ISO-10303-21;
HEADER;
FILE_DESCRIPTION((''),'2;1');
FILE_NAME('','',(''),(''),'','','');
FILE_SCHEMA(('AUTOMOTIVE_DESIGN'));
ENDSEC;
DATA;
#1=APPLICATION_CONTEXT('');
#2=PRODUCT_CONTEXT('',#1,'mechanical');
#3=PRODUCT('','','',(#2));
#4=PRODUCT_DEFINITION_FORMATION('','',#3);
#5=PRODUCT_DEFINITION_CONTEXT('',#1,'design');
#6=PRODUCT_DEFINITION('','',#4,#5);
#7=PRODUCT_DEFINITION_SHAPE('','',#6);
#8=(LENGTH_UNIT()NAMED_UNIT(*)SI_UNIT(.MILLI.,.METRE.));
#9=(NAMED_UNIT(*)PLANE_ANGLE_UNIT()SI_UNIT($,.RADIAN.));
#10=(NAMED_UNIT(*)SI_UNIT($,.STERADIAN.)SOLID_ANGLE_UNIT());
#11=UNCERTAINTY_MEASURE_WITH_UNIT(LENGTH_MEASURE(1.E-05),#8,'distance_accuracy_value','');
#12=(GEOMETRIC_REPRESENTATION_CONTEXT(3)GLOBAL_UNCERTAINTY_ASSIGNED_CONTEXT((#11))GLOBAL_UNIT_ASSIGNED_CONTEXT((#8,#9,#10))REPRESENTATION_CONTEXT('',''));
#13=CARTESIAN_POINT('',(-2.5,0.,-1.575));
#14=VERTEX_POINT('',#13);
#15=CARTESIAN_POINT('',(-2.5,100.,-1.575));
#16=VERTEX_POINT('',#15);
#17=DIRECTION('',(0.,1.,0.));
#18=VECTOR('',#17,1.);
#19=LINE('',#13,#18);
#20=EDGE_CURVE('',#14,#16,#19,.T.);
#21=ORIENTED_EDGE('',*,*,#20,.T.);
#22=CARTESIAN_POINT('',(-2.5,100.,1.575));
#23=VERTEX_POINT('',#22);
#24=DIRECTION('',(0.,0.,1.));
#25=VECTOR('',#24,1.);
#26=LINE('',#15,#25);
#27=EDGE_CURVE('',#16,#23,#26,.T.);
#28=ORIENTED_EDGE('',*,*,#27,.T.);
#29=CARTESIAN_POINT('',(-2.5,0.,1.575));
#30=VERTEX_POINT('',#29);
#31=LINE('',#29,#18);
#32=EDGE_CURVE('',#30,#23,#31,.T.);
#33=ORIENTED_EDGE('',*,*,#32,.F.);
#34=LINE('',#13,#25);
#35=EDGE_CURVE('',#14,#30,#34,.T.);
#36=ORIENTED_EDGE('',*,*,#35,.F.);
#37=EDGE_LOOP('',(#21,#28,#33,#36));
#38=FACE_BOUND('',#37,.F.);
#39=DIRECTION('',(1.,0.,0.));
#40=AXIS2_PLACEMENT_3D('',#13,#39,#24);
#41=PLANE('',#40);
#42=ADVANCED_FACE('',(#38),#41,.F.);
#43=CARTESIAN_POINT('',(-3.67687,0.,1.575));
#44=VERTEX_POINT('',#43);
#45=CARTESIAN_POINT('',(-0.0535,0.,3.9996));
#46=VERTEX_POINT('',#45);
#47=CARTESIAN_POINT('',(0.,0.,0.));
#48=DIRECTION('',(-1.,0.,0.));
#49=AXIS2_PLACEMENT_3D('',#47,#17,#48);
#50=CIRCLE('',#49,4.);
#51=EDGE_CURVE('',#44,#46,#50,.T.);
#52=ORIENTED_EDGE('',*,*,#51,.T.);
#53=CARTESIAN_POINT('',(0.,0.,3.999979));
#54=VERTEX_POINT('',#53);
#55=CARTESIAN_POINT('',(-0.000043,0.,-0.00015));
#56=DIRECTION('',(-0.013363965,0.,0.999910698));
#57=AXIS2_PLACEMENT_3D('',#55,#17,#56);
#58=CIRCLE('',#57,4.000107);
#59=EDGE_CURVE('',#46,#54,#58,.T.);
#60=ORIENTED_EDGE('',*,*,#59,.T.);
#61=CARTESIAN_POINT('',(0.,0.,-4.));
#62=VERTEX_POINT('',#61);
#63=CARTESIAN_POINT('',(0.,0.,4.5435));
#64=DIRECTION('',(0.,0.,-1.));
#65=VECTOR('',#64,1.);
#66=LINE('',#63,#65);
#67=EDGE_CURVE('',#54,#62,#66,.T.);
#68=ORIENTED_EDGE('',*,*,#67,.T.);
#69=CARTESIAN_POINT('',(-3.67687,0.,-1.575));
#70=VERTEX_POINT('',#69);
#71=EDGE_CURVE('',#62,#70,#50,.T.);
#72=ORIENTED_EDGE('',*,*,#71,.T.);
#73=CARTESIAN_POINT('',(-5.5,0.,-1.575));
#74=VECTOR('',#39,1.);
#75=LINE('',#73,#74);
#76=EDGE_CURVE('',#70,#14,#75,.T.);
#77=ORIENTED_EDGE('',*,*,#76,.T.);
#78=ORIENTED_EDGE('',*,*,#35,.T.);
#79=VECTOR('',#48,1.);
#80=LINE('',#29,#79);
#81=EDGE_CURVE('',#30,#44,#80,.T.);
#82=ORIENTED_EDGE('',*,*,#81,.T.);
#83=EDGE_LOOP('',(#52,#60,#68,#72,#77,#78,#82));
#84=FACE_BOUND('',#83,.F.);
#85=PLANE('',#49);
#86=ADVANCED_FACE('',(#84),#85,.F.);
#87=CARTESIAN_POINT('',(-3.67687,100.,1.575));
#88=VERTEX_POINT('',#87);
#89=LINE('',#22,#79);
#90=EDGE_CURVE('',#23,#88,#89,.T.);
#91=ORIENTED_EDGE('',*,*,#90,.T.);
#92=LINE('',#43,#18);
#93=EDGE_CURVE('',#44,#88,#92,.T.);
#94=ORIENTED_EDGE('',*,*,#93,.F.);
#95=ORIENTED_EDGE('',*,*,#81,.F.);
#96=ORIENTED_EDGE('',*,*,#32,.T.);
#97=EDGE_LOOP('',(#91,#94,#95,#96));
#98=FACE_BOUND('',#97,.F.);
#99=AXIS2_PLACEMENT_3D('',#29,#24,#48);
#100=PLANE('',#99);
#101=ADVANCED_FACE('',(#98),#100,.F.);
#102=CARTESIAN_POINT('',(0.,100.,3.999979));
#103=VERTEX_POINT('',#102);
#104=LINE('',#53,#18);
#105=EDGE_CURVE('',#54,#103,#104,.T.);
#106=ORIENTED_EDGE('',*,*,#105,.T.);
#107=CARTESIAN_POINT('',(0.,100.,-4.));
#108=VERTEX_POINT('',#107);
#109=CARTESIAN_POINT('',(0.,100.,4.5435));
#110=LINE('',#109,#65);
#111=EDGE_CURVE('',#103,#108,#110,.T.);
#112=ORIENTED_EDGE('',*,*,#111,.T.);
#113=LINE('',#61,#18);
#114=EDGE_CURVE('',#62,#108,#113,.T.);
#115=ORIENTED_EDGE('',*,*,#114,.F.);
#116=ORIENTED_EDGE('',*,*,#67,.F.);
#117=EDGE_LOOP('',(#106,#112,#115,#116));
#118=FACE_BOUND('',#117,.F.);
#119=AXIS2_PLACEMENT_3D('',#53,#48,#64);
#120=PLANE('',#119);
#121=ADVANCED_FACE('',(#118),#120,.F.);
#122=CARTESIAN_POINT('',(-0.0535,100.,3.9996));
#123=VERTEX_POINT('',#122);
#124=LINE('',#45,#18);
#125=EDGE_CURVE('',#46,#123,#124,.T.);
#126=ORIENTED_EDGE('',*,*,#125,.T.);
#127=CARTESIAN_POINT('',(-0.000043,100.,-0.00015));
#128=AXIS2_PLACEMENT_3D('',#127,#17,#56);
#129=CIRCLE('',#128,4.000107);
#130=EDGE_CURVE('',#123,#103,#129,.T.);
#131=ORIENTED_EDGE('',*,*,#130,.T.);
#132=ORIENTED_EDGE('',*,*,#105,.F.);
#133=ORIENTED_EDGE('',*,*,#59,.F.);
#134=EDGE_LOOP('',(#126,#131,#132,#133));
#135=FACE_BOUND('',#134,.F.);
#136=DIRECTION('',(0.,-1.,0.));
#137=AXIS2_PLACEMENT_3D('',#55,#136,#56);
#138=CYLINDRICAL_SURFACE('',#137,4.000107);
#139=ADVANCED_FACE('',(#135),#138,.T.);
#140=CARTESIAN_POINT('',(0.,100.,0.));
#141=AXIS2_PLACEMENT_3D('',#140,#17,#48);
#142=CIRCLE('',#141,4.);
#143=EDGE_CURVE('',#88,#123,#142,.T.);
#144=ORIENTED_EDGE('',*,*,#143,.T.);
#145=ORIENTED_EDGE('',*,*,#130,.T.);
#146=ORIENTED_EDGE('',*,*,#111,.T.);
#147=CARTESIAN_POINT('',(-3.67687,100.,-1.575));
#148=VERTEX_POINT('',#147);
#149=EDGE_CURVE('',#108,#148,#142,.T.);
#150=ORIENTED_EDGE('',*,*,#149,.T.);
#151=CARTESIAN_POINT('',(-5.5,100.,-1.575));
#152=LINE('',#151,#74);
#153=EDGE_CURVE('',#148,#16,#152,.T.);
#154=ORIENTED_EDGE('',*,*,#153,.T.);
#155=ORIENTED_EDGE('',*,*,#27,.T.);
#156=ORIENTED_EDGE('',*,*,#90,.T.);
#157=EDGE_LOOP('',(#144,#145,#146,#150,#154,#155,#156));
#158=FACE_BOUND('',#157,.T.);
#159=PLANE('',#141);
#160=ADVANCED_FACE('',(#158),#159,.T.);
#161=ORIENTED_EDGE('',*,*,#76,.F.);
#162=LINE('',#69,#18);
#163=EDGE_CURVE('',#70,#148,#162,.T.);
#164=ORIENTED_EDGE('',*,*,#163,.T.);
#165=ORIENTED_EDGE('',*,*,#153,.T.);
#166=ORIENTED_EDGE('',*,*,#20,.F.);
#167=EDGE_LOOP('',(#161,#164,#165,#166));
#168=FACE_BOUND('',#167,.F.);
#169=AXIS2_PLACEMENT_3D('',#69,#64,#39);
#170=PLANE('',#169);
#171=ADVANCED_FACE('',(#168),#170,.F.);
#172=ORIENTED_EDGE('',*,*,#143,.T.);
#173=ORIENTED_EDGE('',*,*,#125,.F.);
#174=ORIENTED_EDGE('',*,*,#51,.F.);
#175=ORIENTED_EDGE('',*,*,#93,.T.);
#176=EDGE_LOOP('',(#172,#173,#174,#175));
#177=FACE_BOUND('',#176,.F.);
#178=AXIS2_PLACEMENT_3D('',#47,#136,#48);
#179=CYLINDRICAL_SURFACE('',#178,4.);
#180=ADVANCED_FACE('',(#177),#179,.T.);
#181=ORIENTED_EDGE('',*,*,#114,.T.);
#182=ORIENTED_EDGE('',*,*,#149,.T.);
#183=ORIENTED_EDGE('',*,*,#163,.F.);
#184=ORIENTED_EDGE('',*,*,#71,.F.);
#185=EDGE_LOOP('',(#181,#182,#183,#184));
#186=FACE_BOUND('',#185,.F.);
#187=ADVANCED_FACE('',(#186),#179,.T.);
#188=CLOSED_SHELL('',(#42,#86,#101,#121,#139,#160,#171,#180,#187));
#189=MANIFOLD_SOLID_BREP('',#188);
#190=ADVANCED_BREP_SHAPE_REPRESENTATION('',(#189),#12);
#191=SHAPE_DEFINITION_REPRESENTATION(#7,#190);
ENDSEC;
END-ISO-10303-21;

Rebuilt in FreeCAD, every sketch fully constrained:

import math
import FreeCAD as App
import Part
import Sketcher
from FreeCAD import Vector

doc = App.newDocument("Part")
body = doc.addObject("PartDesign::Body", "Body")

sketch1 = body.newObject("Sketcher::SketchObject", "Sketch")
sketch1.AttachmentSupport = (doc.getObject("XZ_Plane"), [""])
sketch1.MapMode = "FlatFace"
sketch1.addGeometry(Part.LineSegment(Vector(0, 3.999979, 0), Vector(0, -4, 0)), False)
sketch1.addGeometry(Part.ArcOfCircle(Part.Circle(Vector(0, 0, 0), Vector(0, 0, 1), 4), math.radians(-156.811962), math.radians(-90)), False)
sketch1.addGeometry(Part.LineSegment(Vector(-3.67687, -1.575, 0), Vector(-2.5, -1.575, 0)), False)
sketch1.addGeometry(Part.LineSegment(Vector(-2.5, -1.575, 0), Vector(-2.5, 1.575, 0)), False)
sketch1.addGeometry(Part.LineSegment(Vector(-2.5, 1.575, 0), Vector(-3.67687, 1.575, 0)), False)
sketch1.addGeometry(Part.ArcOfCircle(Part.Circle(Vector(0, 0, 0), Vector(0, 0, 1), 4), math.radians(90.766362), math.radians(156.811962)), False)
sketch1.addGeometry(Part.ArcOfCircle(Part.Circle(Vector(0, 0, 0), Vector(0, 0, 1), 4.000001), math.radians(90), math.radians(90.766362)), False)
sketch1.addConstraint(Sketcher.Constraint("Coincident", 0, 2, 1, 2))
sketch1.addConstraint(Sketcher.Constraint("Coincident", 1, 1, 2, 1))
sketch1.addConstraint(Sketcher.Constraint("Coincident", 2, 2, 3, 1))
sketch1.addConstraint(Sketcher.Constraint("Coincident", 3, 2, 4, 1))
sketch1.addConstraint(Sketcher.Constraint("Coincident", 4, 2, 5, 2))
sketch1.addConstraint(Sketcher.Constraint("Tangent", 5, 1, 6, 2))
sketch1.addConstraint(Sketcher.Constraint("Coincident", 6, 1, 0, 1))
sketch1.addConstraint(Sketcher.Constraint("Vertical", 0))
sketch1.addConstraint(Sketcher.Constraint("Horizontal", 2))
sketch1.addConstraint(Sketcher.Constraint("Vertical", 3))
sketch1.addConstraint(Sketcher.Constraint("Horizontal", 4))
sketch1.addConstraint(Sketcher.Constraint("Coincident", 1, 3, -1, 1))
sketch1.addConstraint(Sketcher.Constraint("Coincident", 5, 3, -1, 1))
sketch1.addConstraint(Sketcher.Constraint("Equal", 1, 5))
sketch1.addConstraint(Sketcher.Constraint("Equal", 5, 6))
sketch1.addConstraint(Sketcher.Constraint("PointOnObject", 0, 2, -2))
sketch1.addConstraint(Sketcher.Constraint("Vertical", 1, 1, 4, 2))
sketch1.addConstraint(Sketcher.Constraint("Radius", 1, 4.0))
sketch1.addConstraint(Sketcher.Constraint("DistanceY", 3, 1, 3, 2, 3.15))
sketch1.addConstraint(Sketcher.Constraint("DistanceX", 2, 2, -1, 1, 2.5))
sketch1.addConstraint(Sketcher.Constraint("DistanceX", 5, 1, -1, 1, 0.0535))
pad1 = body.newObject("PartDesign::Pad", "Pad")
pad1.Profile = sketch1
pad1.Length = 100
pad1.Reversed = True

doc.recompute()
